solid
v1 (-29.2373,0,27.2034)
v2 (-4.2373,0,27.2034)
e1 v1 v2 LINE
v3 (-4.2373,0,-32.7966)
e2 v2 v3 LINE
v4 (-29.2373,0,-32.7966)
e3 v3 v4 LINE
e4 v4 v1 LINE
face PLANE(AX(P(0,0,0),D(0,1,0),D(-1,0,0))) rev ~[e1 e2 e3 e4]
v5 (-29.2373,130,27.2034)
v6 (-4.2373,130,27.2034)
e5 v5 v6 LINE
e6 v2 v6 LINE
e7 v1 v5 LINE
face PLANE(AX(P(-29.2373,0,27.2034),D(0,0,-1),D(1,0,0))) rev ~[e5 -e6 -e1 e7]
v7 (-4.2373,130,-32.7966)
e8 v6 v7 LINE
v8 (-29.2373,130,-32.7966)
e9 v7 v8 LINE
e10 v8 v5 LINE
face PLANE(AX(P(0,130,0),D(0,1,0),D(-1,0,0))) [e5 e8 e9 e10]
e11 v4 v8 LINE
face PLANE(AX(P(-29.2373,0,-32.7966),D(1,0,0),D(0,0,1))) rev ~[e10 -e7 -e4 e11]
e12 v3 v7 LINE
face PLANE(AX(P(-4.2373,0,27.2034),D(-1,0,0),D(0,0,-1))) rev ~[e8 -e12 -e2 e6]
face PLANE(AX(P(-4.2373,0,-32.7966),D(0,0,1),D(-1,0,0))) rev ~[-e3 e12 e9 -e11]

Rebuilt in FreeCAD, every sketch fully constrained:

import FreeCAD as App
import Part
import Sketcher

V = App.Vector


def add_polygon(sketch, points):
    """Adds a closed chain of lines whose ends are joined by coincident constraints."""
    first, n = sketch.GeometryCount, len(points)
    for a, b in zip(points, points[1:] + points[:1]):
        sketch.addGeometry(Part.LineSegment(App.Vector(*a, 0), App.Vector(*b, 0)), False)
    for i in range(n):
        sketch.addConstraint(Sketcher.Constraint("Coincident", first + i, 2, first + (i + 1) % n, 1))

doc = App.newDocument("Part")
body = doc.addObject("PartDesign::Body", "Body")

# Sketch on XZ plane
sketch1 = body.newObject("Sketcher::SketchObject", "Sketch")
sketch1.AttachmentSupport = (doc.getObject("XZ_Plane"), [""])
sketch1.MapMode = "FlatFace"
add_polygon(sketch1, [(-29, -33), (-29, 27), (-4, 27), (-4, -33)])  # lines 0-3
sketch1.addConstraint([
    Sketcher.Constraint("Vertical", 0),
    Sketcher.Constraint("Horizontal", 1),
    Sketcher.Constraint("Vertical", 2),
    Sketcher.Constraint("Horizontal", 3),
    Sketcher.Constraint("DistanceX", 1, 1, 1, 2, 25.0),
    Sketcher.Constraint("DistanceY", 0, 1, 0, 2, 60.0),
    Sketcher.Constraint("DistanceX", 0, 2, -1, 1, 29.2373),
    Sketcher.Constraint("DistanceY", -1, 1, 0, 2, 27.2034),
])
pad1 = body.newObject("PartDesign::Pad", "Pad")
pad1.Profile = sketch1
pad1.Length = 130
pad1.Reversed = True

doc.recompute()
